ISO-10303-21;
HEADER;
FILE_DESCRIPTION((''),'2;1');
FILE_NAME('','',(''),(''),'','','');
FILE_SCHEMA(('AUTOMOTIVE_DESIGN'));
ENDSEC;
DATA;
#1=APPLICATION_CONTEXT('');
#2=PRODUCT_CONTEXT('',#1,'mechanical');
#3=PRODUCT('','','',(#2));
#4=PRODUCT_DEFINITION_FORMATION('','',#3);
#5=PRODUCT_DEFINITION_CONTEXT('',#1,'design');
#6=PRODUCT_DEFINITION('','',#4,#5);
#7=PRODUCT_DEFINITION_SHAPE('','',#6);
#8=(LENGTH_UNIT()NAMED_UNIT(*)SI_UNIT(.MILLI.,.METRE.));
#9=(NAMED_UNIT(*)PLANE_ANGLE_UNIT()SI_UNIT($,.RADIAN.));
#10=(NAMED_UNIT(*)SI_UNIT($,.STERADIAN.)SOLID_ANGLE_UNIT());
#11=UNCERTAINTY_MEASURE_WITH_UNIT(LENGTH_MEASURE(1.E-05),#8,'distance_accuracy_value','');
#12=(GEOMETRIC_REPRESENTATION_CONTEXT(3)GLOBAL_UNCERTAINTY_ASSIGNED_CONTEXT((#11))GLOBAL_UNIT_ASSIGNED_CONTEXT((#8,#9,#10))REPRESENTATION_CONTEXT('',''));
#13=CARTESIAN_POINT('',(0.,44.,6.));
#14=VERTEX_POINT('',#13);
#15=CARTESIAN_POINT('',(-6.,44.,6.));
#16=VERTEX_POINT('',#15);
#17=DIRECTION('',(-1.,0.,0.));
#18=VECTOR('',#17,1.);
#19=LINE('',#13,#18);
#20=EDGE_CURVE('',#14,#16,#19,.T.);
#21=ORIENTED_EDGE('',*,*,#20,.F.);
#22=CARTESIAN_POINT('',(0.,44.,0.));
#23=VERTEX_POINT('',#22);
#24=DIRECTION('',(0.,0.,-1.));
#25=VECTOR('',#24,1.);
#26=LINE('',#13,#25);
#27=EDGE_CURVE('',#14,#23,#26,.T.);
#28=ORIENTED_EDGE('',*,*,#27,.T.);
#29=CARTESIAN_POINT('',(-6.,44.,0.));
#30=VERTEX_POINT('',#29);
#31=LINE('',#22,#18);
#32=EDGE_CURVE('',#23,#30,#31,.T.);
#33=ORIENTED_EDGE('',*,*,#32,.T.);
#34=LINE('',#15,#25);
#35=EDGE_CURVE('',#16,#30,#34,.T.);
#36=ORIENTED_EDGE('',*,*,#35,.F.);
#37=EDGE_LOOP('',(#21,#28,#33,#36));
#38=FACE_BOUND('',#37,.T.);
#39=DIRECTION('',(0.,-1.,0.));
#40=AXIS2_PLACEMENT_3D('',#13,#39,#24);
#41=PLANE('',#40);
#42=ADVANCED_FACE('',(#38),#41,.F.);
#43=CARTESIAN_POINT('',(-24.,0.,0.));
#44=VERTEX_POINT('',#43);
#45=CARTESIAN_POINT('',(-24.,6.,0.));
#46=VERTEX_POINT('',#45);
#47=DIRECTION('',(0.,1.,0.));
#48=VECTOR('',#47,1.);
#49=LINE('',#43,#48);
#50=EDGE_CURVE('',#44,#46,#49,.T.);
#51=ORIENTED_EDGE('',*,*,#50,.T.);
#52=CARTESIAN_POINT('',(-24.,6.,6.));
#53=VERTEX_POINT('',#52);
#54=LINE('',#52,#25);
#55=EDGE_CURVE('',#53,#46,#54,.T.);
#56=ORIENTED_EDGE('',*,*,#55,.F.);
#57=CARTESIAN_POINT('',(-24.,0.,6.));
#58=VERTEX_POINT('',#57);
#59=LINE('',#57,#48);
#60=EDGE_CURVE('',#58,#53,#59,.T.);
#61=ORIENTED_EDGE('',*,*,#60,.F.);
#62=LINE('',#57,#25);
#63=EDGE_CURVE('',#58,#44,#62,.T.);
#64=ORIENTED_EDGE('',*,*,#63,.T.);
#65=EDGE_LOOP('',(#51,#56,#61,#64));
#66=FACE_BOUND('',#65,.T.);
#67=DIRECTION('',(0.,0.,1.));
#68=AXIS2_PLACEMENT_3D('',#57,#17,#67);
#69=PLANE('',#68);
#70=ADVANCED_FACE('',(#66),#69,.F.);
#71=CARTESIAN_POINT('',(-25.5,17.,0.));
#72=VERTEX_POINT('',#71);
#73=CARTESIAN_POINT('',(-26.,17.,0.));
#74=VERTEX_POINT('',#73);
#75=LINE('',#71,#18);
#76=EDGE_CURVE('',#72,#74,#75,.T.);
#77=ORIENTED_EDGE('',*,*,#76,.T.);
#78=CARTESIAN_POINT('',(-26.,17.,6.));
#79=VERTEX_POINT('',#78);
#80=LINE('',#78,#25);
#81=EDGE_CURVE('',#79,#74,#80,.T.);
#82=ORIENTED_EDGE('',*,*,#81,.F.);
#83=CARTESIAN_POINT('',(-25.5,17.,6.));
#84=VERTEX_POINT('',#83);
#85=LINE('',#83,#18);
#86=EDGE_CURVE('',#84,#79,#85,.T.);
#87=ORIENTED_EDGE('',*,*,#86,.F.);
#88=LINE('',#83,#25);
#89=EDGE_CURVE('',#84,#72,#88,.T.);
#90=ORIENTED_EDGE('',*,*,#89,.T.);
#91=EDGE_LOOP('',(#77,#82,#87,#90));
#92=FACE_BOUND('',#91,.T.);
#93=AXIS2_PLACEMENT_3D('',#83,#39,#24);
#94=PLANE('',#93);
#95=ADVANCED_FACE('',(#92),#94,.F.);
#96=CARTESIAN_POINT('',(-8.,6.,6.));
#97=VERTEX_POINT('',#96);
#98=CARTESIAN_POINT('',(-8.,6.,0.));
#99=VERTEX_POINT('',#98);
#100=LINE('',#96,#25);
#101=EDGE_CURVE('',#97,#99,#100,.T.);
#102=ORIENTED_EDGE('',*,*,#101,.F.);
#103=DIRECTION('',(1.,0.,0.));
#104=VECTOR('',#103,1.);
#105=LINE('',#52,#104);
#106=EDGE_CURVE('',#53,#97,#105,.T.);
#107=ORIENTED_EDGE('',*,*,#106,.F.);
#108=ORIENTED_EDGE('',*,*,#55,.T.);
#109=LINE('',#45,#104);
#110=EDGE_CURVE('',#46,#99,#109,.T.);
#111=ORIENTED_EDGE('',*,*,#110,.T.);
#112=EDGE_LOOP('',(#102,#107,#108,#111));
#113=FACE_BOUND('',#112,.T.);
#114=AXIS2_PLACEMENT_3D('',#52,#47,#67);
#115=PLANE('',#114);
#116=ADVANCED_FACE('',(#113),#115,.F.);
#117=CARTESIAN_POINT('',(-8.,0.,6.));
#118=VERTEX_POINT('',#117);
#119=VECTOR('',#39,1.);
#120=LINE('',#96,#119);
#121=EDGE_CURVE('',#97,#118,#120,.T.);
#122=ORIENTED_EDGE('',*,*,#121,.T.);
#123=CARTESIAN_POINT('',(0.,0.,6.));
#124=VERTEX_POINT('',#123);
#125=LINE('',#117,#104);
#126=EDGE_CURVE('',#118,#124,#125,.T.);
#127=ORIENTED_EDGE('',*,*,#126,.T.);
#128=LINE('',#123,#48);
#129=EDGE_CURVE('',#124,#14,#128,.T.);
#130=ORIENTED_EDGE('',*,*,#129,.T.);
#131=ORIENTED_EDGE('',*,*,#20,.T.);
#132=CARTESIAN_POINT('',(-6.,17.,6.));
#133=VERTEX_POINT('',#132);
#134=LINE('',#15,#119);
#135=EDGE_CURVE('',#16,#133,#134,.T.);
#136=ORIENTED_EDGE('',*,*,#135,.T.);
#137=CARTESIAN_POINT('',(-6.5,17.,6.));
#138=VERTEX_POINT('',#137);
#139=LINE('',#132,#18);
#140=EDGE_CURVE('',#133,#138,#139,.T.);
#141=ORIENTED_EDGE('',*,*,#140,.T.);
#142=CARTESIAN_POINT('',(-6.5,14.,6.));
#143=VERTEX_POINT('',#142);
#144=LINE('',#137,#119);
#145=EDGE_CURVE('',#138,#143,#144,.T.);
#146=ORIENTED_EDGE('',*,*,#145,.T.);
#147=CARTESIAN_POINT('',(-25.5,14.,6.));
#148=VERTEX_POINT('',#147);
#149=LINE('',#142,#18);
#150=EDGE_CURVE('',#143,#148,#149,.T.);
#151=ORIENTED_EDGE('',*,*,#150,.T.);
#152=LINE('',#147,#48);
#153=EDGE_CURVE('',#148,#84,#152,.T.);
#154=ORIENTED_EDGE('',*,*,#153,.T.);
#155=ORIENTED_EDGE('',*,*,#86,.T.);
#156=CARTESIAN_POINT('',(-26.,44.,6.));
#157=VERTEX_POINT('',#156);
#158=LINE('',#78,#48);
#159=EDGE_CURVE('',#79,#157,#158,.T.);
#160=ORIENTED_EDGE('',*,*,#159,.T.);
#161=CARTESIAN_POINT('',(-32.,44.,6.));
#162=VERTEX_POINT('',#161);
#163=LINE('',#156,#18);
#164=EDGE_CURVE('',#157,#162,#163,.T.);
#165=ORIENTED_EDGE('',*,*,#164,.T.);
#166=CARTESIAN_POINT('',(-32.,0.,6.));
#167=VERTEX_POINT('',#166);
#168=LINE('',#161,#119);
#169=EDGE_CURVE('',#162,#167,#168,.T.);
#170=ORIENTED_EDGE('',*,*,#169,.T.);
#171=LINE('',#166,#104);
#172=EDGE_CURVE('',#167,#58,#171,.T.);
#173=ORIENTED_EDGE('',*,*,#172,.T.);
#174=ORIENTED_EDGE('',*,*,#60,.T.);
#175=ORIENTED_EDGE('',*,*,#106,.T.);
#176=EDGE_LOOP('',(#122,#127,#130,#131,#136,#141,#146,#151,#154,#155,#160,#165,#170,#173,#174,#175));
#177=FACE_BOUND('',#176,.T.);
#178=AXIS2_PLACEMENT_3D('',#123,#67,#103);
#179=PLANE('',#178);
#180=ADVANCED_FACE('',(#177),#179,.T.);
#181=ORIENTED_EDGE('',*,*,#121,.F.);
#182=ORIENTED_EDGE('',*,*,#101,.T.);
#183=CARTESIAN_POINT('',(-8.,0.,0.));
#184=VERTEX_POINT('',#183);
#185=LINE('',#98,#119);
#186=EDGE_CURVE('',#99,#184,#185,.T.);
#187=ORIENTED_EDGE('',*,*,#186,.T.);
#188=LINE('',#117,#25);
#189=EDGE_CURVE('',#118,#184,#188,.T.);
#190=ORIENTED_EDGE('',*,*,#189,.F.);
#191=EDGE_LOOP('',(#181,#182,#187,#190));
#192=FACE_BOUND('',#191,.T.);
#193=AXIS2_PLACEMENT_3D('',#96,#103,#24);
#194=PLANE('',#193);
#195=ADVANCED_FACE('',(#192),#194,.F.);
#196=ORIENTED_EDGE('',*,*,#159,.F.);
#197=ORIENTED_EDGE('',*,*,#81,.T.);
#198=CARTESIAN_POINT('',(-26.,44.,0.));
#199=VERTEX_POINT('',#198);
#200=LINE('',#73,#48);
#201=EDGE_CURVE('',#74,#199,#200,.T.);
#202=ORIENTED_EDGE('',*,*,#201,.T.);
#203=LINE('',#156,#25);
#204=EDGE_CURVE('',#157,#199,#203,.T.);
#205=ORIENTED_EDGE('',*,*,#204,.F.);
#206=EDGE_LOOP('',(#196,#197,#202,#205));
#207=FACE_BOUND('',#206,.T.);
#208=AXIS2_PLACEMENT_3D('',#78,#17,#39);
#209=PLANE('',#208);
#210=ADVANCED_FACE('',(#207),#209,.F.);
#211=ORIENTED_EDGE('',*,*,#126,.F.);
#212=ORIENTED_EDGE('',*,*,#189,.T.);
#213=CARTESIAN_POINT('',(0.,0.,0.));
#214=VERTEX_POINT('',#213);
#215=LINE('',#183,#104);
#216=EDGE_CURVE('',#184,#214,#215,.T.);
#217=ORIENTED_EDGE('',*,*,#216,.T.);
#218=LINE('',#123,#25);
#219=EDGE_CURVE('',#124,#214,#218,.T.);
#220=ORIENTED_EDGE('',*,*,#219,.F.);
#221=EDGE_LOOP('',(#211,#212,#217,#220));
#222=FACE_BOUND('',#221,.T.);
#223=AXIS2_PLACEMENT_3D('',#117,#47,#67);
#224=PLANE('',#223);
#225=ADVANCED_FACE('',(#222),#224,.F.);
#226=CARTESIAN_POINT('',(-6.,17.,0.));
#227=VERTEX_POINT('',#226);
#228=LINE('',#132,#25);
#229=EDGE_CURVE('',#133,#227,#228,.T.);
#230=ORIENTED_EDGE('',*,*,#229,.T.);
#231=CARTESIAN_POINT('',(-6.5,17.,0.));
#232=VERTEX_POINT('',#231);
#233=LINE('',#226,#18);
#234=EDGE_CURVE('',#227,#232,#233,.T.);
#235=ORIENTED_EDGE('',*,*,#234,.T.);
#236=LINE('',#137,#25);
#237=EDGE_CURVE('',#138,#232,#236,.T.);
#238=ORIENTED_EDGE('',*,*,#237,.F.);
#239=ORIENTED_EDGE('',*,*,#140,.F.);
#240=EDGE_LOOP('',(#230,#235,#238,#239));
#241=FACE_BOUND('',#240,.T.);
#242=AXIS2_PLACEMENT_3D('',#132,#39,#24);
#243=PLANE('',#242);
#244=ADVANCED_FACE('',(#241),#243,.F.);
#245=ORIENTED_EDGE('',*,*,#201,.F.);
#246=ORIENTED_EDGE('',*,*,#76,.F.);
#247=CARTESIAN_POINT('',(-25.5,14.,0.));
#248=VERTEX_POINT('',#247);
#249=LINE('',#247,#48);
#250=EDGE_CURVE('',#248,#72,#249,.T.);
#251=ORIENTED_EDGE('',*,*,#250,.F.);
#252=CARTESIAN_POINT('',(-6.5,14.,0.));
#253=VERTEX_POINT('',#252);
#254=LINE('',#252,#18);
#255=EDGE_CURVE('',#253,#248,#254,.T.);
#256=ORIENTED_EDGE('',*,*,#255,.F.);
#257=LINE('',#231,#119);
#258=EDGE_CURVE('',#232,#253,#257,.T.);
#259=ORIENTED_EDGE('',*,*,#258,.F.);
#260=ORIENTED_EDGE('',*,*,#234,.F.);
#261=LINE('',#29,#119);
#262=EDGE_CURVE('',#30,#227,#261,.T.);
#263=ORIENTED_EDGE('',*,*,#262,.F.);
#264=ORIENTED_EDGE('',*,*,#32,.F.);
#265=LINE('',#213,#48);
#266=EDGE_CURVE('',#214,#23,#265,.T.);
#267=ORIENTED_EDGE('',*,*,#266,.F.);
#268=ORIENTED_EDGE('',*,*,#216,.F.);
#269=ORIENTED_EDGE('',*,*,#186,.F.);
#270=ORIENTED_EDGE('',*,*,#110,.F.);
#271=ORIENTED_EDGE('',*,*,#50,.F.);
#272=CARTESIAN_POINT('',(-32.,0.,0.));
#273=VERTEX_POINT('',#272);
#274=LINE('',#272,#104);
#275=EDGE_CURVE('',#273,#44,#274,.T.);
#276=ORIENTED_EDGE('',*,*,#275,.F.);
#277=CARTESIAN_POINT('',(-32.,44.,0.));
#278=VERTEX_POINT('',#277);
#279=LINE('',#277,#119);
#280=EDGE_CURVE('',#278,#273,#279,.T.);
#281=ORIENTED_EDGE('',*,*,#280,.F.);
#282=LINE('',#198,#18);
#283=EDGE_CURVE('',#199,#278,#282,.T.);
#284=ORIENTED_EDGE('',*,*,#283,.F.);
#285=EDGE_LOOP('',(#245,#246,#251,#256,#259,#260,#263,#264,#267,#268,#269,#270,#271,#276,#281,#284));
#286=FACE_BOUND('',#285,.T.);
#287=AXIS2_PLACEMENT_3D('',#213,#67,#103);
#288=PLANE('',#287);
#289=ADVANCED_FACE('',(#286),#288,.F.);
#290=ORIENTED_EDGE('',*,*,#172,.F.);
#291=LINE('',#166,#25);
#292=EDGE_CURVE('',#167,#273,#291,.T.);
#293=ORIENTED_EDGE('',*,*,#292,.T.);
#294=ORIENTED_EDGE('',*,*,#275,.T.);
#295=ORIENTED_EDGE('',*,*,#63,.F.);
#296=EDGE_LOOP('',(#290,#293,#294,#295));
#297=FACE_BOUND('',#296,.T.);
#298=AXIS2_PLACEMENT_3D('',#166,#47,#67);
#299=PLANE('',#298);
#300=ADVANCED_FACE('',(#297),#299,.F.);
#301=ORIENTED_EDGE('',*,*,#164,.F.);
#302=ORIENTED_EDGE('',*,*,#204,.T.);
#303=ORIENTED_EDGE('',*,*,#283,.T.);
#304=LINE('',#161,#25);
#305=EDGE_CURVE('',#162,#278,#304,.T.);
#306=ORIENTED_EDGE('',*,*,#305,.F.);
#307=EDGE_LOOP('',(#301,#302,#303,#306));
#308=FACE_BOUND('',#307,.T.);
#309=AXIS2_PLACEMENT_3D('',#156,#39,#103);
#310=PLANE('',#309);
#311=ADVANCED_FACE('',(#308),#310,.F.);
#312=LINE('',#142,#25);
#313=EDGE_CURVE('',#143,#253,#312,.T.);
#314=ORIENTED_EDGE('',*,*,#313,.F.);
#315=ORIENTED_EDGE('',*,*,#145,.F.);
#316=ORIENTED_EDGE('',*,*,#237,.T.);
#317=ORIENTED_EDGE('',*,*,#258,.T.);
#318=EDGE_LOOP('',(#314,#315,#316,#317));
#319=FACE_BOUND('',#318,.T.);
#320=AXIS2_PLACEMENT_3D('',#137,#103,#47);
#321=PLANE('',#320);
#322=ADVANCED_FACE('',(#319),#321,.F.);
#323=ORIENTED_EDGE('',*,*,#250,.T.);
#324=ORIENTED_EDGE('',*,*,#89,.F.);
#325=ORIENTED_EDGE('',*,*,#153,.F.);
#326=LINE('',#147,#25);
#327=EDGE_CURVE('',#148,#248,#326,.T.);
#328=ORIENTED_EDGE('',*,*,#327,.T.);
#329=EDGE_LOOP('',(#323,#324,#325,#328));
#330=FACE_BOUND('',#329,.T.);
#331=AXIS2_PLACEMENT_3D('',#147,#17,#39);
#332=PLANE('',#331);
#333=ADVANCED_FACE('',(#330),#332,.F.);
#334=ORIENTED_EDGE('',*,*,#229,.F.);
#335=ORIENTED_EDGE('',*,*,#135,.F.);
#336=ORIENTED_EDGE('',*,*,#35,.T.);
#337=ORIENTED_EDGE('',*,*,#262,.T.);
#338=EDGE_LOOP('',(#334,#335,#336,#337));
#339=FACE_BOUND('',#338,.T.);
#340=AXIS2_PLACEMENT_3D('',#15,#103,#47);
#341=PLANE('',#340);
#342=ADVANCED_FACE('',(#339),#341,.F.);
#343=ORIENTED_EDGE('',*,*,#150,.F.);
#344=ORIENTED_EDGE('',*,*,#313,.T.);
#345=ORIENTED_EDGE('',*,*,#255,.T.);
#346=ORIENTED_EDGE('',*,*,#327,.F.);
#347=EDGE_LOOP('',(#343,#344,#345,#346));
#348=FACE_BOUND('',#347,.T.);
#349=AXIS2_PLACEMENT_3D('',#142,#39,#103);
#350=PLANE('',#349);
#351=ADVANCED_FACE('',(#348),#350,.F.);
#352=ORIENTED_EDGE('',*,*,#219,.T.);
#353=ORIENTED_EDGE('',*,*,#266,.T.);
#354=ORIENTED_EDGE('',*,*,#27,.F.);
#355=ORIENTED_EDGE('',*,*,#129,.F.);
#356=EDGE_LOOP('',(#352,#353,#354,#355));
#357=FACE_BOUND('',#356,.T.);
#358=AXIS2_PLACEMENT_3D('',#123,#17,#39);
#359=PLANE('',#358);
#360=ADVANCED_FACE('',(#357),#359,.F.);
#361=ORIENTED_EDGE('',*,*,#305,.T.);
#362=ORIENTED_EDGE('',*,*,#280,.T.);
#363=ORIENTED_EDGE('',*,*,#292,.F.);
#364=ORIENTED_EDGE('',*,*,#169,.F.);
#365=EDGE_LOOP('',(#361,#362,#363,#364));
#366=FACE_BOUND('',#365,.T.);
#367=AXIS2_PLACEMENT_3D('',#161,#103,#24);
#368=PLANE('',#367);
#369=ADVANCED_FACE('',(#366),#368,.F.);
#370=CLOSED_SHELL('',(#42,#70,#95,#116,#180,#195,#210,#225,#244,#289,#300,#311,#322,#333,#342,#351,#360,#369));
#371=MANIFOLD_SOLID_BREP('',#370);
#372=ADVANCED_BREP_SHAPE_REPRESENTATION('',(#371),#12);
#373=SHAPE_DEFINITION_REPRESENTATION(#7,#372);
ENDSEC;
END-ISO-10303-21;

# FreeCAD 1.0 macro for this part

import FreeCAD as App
import Part
import Sketcher


def add_polygon(sketch, points):
    """Adds a closed chain of lines whose ends are joined by coincident constraints."""
    first, n = sketch.GeometryCount, len(points)
    for a, b in zip(points, points[1:] + points[:1]):
        sketch.addGeometry(Part.LineSegment(App.Vector(*a, 0), App.Vector(*b, 0)), False)
    for i in range(n):
        sketch.addConstraint(Sketcher.Constraint("Coincident", first + i, 2, first + (i + 1) % n, 1))

doc = App.newDocument("Part")
body = doc.addObject("PartDesign::Body", "Body")

sketch1 = body.newObject("Sketcher::SketchObject", "Sketch")
sketch1.AttachmentSupport = (doc.getObject("XY_Plane"), [""])
sketch1.MapMode = "FlatFace"
add_polygon(sketch1, [(0, 0), (0, 44), (-6, 44), (-6, 17), (-6.5, 17), (-6.5, 14), (-25.5, 14), (-25.5, 17), (-26, 17), (-26, 44), (-32, 44), (-32, 0), (-24, 0), (-24, 6), (-8, 6), (-8, 0)])
sketch1.addConstraint(Sketcher.Constraint("Vertical", 0))
sketch1.addConstraint(Sketcher.Constraint("Horizontal", 1))
sketch1.addConstraint(Sketcher.Constraint("Vertical", 2))
sketch1.addConstraint(Sketcher.Constraint("Horizontal", 3))
sketch1.addConstraint(Sketcher.Constraint("Vertical", 4))
sketch1.addConstraint(Sketcher.Constraint("Horizontal", 5))
sketch1.addConstraint(Sketcher.Constraint("Vertical", 6))
sketch1.addConstraint(Sketcher.Constraint("Horizontal", 7))
sketch1.addConstraint(Sketcher.Constraint("Vertical", 8))
sketch1.addConstraint(Sketcher.Constraint("Horizontal", 9))
sketch1.addConstraint(Sketcher.Constraint("Vertical", 10))
sketch1.addConstraint(Sketcher.Constraint("Horizontal", 11))
sketch1.addConstraint(Sketcher.Constraint("Vertical", 12))
sketch1.addConstraint(Sketcher.Constraint("Horizontal", 13))
sketch1.addConstraint(Sketcher.Constraint("Vertical", 14))
sketch1.addConstraint(Sketcher.Constraint("Horizontal", 15))
sketch1.addConstraint(Sketcher.Constraint("Coincident", 15, 2, -1, 1))
sketch1.addConstraint(Sketcher.Constraint("PointOnObject", 10, 2, -1))
sketch1.addConstraint(Sketcher.Constraint("Horizontal", 3, 2, 6, 2))
sketch1.addConstraint(Sketcher.Constraint("Horizontal", 1, 2, 8, 2))
sketch1.addConstraint(Sketcher.Constraint("Equal", 3, 7))
sketch1.addConstraint(Sketcher.Constraint("Equal", 1, 9))
sketch1.addConstraint(Sketcher.Constraint("Equal", 11, 15))
sketch1.addConstraint(Sketcher.Constraint("Equal", 9, 12))
sketch1.addConstraint(Sketcher.Constraint("DistanceX", 1, 2, 1, 1, 6.0))
sketch1.addConstraint(Sketcher.Constraint("DistanceX", 5, 2, 5, 1, 19.0))
sketch1.addConstraint(Sketcher.Constraint("DistanceX", 11, 1, 11, 2, 8.0))
sketch1.addConstraint(Sketcher.Constraint("DistanceX", 13, 1, 13, 2, 16.0))
sketch1.addConstraint(Sketcher.Constraint("DistanceY", 0, 1, 0, 2, 44.0))
sketch1.addConstraint(Sketcher.Constraint("DistanceY", 2, 2, 2, 1, 27.0))
sketch1.addConstraint(Sketcher.Constraint("DistanceY", 4, 2, 4, 1, 3.0))
pad1 = body.newObject("PartDesign::Pad", "Pad")
pad1.Profile = sketch1
pad1.Length = 6

doc.recompute()
